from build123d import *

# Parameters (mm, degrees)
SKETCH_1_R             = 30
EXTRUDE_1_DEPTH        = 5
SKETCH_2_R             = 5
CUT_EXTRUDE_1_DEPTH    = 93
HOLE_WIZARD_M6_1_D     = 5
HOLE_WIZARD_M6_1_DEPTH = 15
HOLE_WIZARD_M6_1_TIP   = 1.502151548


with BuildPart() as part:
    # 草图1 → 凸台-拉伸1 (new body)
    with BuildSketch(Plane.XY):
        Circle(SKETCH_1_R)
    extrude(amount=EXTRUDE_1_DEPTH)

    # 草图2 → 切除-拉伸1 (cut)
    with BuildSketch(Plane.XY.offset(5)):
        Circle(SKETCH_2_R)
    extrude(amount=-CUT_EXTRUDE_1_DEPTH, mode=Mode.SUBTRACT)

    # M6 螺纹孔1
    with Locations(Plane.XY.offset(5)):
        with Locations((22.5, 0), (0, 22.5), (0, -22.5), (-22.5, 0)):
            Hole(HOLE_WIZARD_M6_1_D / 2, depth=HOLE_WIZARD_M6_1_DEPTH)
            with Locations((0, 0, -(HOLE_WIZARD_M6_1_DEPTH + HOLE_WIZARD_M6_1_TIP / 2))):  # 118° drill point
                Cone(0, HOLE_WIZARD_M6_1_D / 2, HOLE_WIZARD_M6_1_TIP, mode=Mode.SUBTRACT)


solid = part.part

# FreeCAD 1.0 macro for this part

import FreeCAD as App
import Part
import Sketcher

V = App.Vector
Q = App.Units.Quantity

doc = App.newDocument("Part")
body = doc.addObject("PartDesign::Body", "Body")

# Sketch on XY plane
sketch1 = doc.addObject("Sketcher::SketchObject", "Sketch")
body.addObject(sketch1)
sketch1.AttachmentSupport = (doc.XY_Plane, [""])
sketch1.MapMode = "FlatFace"
sketch1.addGeometry(Part.Circle(V(0, 0, 0), V(0, 0, 1), 30), False)
sketch1.addConstraint(Sketcher.Constraint("Coincident", 0, 3, -1, 1))
sketch1.addConstraint(Sketcher.Constraint("Diameter", 0, Q("60 mm")))
pad1 = doc.addObject("PartDesign::Pad", "Pad")
body.addObject(pad1)
pad1.Profile = sketch1
pad1.Length = 5

# Sketch on XY plane
sketch2 = doc.addObject("Sketcher::SketchObject", "Sketch001")
body.addObject(sketch2)
sketch2.AttachmentSupport = (doc.XY_Plane, [""])
sketch2.MapMode = "FlatFace"
sketch2.AttachmentOffset = App.Placement(V(0, 0, 5), App.Rotation())
sketch2.addGeometry(Part.Circle(V(0, 0, 0), V(0, 0, 1), 5), False)
sketch2.addConstraint(Sketcher.Constraint("Coincident", 0, 3, -1, 1))
sketch2.addConstraint(Sketcher.Constraint("Diameter", 0, Q("10 mm")))
pocket1 = doc.addObject("PartDesign::Pocket", "Pocket")
body.addObject(pocket1)
pocket1.Profile = sketch2
pocket1.Length = 93

# Sketch on XY plane
sketch3 = doc.addObject("Sketcher::SketchObject", "Sketch002")
body.addObject(sketch3)
sketch3.AttachmentSupport = (doc.XY_Plane, [""])
sketch3.MapMode = "FlatFace"
sketch3.AttachmentOffset = App.Placement(V(0, 0, 5), App.Rotation())
sketch3.addGeometry(Part.Circle(V(22.5, 0, 0), V(0, 0, 1), 2.5), False)
sketch3.addGeometry(Part.Circle(V(0, 22.5, 0), V(0, 0, 1), 2.5), False)
sketch3.addGeometry(Part.Circle(V(0, -22.5, 0), V(0, 0, 1), 2.5), False)
sketch3.addGeometry(Part.Circle(V(-22.5, 0, 0), V(0, 0, 1), 2.5), False)
sketch3.addConstraint(Sketcher.Constraint("Equal", 0, 1))
sketch3.addConstraint(Sketcher.Constraint("Equal", 1, 2))
sketch3.addConstraint(Sketcher.Constraint("Equal", 2, 3))
sketch3.addConstraint(Sketcher.Constraint("Symmetric", 1, 3, 2, 3, -1, 1))
sketch3.addConstraint(Sketcher.Constraint("Symmetric", 0, 3, 3, 3, -1, 1))
sketch3.addConstraint(Sketcher.Constraint("PointOnObject", 0, 3, -1))
sketch3.addConstraint(Sketcher.Constraint("PointOnObject", 1, 3, -2))
sketch3.addConstraint(Sketcher.Constraint("Diameter", 0, Q("5 mm")))
sketch3.addConstraint(Sketcher.Constraint("DistanceY", 2, 3, 1, 3, Q("45 mm")))
sketch3.addConstraint(Sketcher.Constraint("DistanceX", 3, 3, 0, 3, Q("45 mm")))
doc.recompute()
hole = doc.addObject("PartDesign::Hole", "Hole")
body.addObject(hole)
hole.Profile = sketch3
hole.ThreadType = "None"
hole.Diameter = 5
hole.DepthType = "Dimension"
hole.Depth = 15
hole.DrillPoint = "Angled"
hole.DrillPointAngle = 118

doc.recompute()
